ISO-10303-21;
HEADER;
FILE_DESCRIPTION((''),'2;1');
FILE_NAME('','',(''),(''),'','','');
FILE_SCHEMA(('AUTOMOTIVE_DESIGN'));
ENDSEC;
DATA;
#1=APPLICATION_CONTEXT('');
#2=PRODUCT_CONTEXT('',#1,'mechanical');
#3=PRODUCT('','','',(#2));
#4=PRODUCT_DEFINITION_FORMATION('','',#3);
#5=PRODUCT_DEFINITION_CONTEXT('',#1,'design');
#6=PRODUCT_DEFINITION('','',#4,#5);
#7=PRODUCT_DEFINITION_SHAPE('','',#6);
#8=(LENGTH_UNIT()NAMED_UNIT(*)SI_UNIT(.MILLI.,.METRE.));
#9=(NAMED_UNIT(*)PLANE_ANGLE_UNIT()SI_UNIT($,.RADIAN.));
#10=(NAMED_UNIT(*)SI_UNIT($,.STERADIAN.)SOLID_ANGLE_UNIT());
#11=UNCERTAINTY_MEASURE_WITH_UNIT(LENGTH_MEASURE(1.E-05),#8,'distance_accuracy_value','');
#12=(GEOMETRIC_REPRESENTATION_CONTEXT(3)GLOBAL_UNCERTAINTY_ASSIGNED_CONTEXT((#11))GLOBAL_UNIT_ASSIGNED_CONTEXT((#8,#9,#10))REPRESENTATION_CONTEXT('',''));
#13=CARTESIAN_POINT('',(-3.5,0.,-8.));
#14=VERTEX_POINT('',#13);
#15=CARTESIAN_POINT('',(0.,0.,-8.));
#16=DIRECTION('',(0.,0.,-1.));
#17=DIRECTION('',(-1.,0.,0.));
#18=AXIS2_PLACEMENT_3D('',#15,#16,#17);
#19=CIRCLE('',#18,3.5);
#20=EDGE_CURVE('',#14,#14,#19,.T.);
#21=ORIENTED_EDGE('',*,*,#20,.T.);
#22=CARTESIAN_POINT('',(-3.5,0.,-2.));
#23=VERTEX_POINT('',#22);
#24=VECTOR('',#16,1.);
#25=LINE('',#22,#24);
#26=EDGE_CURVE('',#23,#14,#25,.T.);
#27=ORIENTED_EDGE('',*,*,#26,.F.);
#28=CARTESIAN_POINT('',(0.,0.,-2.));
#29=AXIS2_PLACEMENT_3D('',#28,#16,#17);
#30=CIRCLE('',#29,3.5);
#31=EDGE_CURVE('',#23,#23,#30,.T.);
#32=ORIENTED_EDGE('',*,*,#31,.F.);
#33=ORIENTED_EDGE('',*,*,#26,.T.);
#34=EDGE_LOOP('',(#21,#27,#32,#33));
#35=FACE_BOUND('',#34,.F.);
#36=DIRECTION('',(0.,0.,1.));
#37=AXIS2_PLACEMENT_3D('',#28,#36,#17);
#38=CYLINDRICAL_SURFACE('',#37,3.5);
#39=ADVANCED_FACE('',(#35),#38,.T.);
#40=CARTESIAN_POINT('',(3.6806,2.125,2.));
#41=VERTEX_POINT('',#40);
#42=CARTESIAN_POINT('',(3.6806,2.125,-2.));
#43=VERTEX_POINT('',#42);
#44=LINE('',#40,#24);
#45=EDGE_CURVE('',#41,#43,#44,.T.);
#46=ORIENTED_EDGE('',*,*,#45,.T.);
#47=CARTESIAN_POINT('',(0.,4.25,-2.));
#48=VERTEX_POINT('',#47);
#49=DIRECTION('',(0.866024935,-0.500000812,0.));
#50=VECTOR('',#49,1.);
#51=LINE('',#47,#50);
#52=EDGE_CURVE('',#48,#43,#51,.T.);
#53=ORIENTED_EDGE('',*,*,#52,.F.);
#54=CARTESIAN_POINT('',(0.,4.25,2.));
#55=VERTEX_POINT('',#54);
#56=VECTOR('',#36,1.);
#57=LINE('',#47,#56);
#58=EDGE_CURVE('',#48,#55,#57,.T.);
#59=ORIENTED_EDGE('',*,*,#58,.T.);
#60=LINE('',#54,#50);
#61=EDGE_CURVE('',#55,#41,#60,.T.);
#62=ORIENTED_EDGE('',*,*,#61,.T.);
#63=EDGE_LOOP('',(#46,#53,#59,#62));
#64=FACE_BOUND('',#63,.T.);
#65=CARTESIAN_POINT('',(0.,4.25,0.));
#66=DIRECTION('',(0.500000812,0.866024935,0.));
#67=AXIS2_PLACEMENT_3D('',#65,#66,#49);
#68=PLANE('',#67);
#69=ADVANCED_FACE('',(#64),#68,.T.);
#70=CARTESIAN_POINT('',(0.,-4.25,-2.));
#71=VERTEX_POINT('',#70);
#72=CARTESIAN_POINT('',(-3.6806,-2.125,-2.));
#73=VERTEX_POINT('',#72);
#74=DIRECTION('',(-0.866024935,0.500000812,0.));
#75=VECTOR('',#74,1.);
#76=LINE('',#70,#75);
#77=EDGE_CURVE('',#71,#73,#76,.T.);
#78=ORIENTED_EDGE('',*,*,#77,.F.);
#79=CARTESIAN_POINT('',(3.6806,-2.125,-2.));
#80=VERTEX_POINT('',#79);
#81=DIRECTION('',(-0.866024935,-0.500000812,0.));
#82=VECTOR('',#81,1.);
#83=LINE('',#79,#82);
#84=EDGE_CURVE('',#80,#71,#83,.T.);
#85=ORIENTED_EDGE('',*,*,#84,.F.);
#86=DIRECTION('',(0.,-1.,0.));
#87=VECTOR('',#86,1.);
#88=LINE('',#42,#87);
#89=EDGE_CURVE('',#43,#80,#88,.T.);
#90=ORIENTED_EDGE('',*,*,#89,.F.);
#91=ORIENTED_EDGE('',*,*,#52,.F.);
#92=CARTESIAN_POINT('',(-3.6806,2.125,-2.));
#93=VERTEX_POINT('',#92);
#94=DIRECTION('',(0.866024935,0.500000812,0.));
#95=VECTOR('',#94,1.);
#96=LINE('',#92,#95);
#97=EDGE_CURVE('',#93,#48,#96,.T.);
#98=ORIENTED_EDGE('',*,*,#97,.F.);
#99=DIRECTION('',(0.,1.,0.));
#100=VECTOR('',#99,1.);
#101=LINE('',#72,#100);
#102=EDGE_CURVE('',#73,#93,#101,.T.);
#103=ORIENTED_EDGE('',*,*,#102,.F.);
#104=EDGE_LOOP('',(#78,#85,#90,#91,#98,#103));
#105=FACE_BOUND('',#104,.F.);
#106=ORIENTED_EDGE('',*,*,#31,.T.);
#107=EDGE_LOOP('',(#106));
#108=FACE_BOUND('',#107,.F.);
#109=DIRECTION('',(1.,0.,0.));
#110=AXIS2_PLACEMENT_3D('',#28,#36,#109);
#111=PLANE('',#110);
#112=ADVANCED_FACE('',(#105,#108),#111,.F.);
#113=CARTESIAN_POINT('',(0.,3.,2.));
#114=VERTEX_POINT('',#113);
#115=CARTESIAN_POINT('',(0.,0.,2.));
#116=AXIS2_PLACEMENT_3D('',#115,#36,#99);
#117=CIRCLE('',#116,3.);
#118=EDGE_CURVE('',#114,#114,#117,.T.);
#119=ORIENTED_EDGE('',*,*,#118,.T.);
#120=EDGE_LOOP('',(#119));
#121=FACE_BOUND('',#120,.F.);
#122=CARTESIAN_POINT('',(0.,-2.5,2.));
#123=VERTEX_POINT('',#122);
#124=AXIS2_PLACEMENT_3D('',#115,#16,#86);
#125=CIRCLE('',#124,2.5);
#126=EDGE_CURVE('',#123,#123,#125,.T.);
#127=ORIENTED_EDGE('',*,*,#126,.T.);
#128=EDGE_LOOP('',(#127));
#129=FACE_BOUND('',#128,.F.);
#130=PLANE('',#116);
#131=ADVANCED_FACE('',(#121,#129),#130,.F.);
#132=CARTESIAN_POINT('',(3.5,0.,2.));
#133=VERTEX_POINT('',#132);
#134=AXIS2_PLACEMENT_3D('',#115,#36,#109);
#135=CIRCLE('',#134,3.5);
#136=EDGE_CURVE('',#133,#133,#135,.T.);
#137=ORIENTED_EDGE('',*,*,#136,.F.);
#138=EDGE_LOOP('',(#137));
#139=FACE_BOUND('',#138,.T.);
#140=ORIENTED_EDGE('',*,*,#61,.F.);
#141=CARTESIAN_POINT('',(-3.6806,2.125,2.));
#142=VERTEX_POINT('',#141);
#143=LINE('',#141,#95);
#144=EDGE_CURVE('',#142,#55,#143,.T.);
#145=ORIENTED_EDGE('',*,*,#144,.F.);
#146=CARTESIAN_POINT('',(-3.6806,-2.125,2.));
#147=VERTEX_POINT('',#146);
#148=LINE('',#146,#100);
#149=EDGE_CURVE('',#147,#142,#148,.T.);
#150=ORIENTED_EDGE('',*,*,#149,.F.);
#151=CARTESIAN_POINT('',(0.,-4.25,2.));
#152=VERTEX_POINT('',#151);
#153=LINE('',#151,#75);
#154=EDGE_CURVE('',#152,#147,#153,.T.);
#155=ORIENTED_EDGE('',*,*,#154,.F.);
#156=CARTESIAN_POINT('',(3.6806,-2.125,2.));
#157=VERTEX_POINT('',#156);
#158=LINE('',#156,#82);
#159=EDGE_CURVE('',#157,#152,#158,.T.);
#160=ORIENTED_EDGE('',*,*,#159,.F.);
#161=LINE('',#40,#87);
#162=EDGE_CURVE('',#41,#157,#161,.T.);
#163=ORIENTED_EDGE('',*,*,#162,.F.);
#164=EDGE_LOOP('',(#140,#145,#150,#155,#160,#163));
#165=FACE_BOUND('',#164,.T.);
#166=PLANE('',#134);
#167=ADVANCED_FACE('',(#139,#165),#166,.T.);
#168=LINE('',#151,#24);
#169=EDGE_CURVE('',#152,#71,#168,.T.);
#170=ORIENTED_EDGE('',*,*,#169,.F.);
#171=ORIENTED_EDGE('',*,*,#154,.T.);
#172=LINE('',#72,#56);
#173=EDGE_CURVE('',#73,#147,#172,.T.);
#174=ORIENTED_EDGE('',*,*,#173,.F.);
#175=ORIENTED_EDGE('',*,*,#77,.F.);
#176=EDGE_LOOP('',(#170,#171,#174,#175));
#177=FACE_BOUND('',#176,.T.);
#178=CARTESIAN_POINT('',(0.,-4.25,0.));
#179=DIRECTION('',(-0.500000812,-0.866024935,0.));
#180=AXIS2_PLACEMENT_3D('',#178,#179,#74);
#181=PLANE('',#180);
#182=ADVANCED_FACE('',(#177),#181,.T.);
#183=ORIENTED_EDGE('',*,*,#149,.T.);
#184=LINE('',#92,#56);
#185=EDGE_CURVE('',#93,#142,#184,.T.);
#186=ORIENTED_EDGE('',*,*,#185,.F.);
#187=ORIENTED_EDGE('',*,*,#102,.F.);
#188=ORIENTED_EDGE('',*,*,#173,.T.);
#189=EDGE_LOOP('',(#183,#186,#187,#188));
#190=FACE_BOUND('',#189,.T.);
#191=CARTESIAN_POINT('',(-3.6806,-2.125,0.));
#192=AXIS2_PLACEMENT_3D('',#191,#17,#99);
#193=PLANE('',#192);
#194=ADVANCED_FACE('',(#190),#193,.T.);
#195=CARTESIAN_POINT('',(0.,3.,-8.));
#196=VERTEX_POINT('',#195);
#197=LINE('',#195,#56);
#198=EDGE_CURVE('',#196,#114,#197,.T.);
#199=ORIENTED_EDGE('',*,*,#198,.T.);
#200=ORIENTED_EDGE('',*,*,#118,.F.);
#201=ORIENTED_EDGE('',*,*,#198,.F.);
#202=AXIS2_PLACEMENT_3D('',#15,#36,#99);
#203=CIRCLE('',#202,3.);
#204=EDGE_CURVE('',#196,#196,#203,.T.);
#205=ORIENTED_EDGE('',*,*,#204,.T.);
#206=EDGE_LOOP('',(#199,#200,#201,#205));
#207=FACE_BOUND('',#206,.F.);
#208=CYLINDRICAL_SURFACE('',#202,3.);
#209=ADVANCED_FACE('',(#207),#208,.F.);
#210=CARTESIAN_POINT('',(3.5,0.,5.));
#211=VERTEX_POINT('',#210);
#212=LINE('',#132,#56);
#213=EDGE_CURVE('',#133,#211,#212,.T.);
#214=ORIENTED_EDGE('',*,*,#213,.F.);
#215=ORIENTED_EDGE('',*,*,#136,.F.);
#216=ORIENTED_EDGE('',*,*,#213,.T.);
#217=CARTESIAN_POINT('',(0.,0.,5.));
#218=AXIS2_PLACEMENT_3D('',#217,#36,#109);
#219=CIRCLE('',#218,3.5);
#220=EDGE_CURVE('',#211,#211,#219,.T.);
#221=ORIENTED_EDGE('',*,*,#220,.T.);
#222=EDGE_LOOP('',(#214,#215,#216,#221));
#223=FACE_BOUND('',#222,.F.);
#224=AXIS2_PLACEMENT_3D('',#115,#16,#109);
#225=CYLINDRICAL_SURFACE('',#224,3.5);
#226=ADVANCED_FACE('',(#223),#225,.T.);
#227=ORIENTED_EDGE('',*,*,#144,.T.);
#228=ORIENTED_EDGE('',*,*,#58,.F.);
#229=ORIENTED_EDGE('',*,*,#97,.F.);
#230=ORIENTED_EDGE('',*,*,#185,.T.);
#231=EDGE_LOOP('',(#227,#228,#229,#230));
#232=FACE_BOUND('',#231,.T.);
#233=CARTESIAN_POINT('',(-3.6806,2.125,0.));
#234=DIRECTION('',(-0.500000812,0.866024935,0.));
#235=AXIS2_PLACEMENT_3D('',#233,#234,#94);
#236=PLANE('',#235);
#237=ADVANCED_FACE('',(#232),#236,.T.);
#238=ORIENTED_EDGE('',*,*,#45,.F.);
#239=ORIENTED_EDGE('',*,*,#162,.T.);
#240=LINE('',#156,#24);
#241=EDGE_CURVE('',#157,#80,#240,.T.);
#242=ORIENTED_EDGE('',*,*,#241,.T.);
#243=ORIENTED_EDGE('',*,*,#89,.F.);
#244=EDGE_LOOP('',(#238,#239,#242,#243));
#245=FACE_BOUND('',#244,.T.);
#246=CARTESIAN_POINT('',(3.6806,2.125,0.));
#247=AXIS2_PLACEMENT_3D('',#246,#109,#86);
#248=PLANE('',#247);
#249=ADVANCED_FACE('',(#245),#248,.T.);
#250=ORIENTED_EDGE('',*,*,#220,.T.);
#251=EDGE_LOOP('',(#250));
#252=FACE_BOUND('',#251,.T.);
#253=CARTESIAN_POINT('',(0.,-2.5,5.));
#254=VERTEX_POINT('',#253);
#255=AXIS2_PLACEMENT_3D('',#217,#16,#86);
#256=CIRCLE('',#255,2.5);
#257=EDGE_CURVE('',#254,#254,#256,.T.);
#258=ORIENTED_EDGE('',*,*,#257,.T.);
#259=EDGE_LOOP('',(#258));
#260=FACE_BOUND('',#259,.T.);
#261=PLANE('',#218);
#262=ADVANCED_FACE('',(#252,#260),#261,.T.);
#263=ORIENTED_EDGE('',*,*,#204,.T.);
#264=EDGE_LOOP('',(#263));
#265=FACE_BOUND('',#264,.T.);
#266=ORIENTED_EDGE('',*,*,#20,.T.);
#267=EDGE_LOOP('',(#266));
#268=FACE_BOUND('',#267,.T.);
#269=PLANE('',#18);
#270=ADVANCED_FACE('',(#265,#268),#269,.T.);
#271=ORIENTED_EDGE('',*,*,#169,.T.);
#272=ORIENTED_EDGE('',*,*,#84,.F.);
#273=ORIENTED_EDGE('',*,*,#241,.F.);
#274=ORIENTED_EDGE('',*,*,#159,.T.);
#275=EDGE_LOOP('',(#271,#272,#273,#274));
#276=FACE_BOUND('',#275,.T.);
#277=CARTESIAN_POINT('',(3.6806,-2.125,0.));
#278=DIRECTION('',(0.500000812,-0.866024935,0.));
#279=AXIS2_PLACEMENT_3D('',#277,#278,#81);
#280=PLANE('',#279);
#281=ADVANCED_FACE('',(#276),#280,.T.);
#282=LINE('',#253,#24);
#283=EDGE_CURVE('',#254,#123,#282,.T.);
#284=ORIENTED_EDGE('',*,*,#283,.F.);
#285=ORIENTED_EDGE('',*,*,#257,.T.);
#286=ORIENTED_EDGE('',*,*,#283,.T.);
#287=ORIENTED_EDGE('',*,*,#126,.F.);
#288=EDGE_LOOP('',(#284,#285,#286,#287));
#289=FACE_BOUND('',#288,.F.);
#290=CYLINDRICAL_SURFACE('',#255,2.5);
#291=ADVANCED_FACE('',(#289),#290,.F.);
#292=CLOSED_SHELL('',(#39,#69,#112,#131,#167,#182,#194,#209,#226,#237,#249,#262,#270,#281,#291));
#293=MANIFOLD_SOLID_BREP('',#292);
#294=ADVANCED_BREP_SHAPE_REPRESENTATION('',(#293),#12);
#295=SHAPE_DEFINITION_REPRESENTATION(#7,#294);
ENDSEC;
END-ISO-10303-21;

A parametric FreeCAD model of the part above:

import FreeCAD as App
import Part
import Sketcher
Q = App.Units.Quantity

doc = App.newDocument("Part")
params = doc.addObject("Spreadsheet::Sheet", "Params")
for row, (alias, value) in enumerate([
    ("sketch1_height", "4.25 mm"),
    ("pad1_length", "4 mm"),
    ("sketch2_diameter", "7 mm"),
    ("pad2_length", "3 mm"),
    ("sketch3_diameter", "7 mm"),
    ("pad3_length", "6 mm"),
    ("sketch4_diameter", "5 mm"),
    ("hole_diameter", "5 mm"),
    ("hole_depth", "3 mm"),
    ("sketch5_diameter", "6 mm"),
    ("hole2_diameter", "6 mm"),
    ("hole2_depth", "10 mm"),
], start=1):
    params.set(f"A{row}", alias)
    params.set(f"B{row}", "=" + value)
    params.setAlias(f"B{row}", alias)

body = doc.addObject("PartDesign::Body", "Body")

# Sketch on XY plane
sketch1 = body.newObject("Sketcher::SketchObject", "Sketch")
sketch1.AttachmentSupport = (doc.getObject("XY_Plane"), [""])
sketch1.MapMode = "FlatFace"
sketch1.addGeometry(Part.LineSegment(App.Vector(3.6806, 2.125, 0), App.Vector(0, 4.25, 0)), False)
sketch1.addGeometry(Part.LineSegment(App.Vector(0, 4.25, 0), App.Vector(-3.6806, 2.125, 0)), False)
sketch1.addGeometry(Part.LineSegment(App.Vector(-3.6806, 2.125, 0), App.Vector(-3.6806, -2.125, 0)), False)
sketch1.addGeometry(Part.LineSegment(App.Vector(-3.6806, -2.125, 0), App.Vector(0, -4.25, 0)), False)
sketch1.addGeometry(Part.LineSegment(App.Vector(0, -4.25, 0), App.Vector(3.6806, -2.125, 0)), False)
sketch1.addGeometry(Part.LineSegment(App.Vector(3.6806, -2.125, 0), App.Vector(3.6806, 2.125, 0)), False)
sketch1.addConstraint(Sketcher.Constraint("Coincident", 0, 2, 1, 1))
sketch1.addConstraint(Sketcher.Constraint("Coincident", 1, 2, 2, 1))
sketch1.addConstraint(Sketcher.Constraint("Coincident", 2, 2, 3, 1))
sketch1.addConstraint(Sketcher.Constraint("Coincident", 3, 2, 4, 1))
sketch1.addConstraint(Sketcher.Constraint("Coincident", 4, 2, 5, 1))
sketch1.addConstraint(Sketcher.Constraint("Coincident", 5, 2, 0, 1))
sketch1.addConstraint(Sketcher.Constraint("Vertical", 2))
sketch1.addConstraint(Sketcher.Constraint("Vertical", 5))
sketch1.addConstraint(Sketcher.Constraint("Symmetric", 0, 2, 3, 2, -1, 1))
sketch1.addConstraint(Sketcher.Constraint("Symmetric", 1, 2, 4, 2, -1, 1))
sketch1.addConstraint(Sketcher.Constraint("PointOnObject", 0, 2, -2))
sketch1.addConstraint(Sketcher.Constraint("Parallel", 0, 3))
sketch1.addConstraint(Sketcher.Constraint("Horizontal", 2, 2, 4, 2))
sketch1.addConstraint(Sketcher.Constraint("DistanceY", 3, 2, 0, 2, Q("8.5 mm")))
sketch1.addConstraint(Sketcher.Constraint("Angle", 0, Q("150 deg")))
sketch1.addConstraint(Sketcher.Constraint("DistanceY", 2, 2, 2, 1, Q("4.25 mm")))
sketch1.setExpression("Constraints[15]", "Params.sketch1_height")
pad1 = body.newObject("PartDesign::Pad", "Pad")
pad1.Profile = sketch1
pad1.setExpression("Length", "Params.pad1_length")
pad1.Midplane = True

# Sketch on XY plane
sketch2 = body.newObject("Sketcher::SketchObject", "Sketch001")
sketch2.AttachmentSupport = (doc.getObject("XY_Plane"), [""])
sketch2.MapMode = "FlatFace"
sketch2.AttachmentOffset = App.Placement(App.Vector(0, 0, 2), App.Rotation())
sketch2.addGeometry(Part.Circle(App.Vector(0, 0, 0), App.Vector(0, 0, 1), 3.5), False)
sketch2.addConstraint(Sketcher.Constraint("Coincident", 0, 3, -1, 1))
sketch2.addConstraint(Sketcher.Constraint("Diameter", 0, Q("7 mm")))
sketch2.setExpression("Constraints[1]", "Params.sketch2_diameter")
pad2 = body.newObject("PartDesign::Pad", "Pad001")
pad2.Profile = sketch2
pad2.setExpression("Length", "Params.pad2_length")

# Sketch on XY plane
sketch3 = body.newObject("Sketcher::SketchObject", "Sketch002")
sketch3.AttachmentSupport = (doc.getObject("XY_Plane"), [""])
sketch3.MapMode = "FlatFace"
sketch3.AttachmentOffset = App.Placement(App.Vector(0, 0, -2), App.Rotation())
sketch3.addGeometry(Part.Circle(App.Vector(0, 0, 0), App.Vector(0, 0, 1), 3.5), False)
sketch3.addConstraint(Sketcher.Constraint("Coincident", 0, 3, -1, 1))
sketch3.addConstraint(Sketcher.Constraint("Diameter", 0, Q("7 mm")))
sketch3.setExpression("Constraints[1]", "Params.sketch3_diameter")
pad3 = body.newObject("PartDesign::Pad", "Pad002")
pad3.Profile = sketch3
pad3.setExpression("Length", "Params.pad3_length")
pad3.Reversed = True

# Sketch on XY plane
sketch4 = body.newObject("Sketcher::SketchObject", "Sketch003")
sketch4.AttachmentSupport = (doc.getObject("XY_Plane"), [""])
sketch4.MapMode = "FlatFace"
sketch4.AttachmentOffset = App.Placement(App.Vector(0, 0, 5), App.Rotation())
sketch4.addGeometry(Part.Circle(App.Vector(0, 0, 0), App.Vector(0, 0, 1), 2.5), False)
sketch4.addConstraint(Sketcher.Constraint("Coincident", 0, 3, -1, 1))
sketch4.addConstraint(Sketcher.Constraint("Diameter", 0, Q("5 mm")))
sketch4.setExpression("Constraints[1]", "Params.sketch4_diameter")
doc.recompute()
hole = body.newObject("PartDesign::Hole", "Hole")
hole.Profile = sketch4
hole.ThreadType = "None"
hole.setExpression("Diameter", "Params.hole_diameter")
hole.DepthType = "Dimension"
hole.setExpression("Depth", "Params.hole_depth")
hole.DrillPoint = "Flat"

# Sketch on XY plane
sketch5 = body.newObject("Sketcher::SketchObject", "Sketch004")
sketch5.AttachmentSupport = (doc.getObject("XY_Plane"), [""])
sketch5.MapMode = "FlatFace"
sketch5.AttachmentOffset = App.Placement(App.Vector(0, 0, -8), App.Rotation())
sketch5.addGeometry(Part.Circle(App.Vector(0, 0, 0), App.Vector(0, 0, 1), 3), False)
sketch5.addConstraint(Sketcher.Constraint("Coincident", 0, 3, -1, 1))
sketch5.addConstraint(Sketcher.Constraint("Diameter", 0, Q("6 mm")))
sketch5.setExpression("Constraints[1]", "Params.sketch5_diameter")
doc.recompute()
hole2 = body.newObject("PartDesign::Hole", "Hole001")
hole2.Profile = sketch5
hole2.ThreadType = "None"
hole2.setExpression("Diameter", "Params.hole2_diameter")
hole2.DepthType = "Dimension"
hole2.setExpression("Depth", "Params.hole2_depth")
hole2.DrillPoint = "Flat"
hole2.Reversed = True

doc.recompute()
